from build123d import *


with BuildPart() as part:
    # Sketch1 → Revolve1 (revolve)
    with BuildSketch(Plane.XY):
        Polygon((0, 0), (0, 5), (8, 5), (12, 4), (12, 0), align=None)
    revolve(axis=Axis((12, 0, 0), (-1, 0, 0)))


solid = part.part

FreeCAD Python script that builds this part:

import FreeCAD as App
import Part
import Sketcher
from FreeCAD import Vector
Q = App.Units.Quantity


def add_polygon(sketch, points):
    """Adds a closed chain of lines whose ends are joined by coincident constraints."""
    first, n = sketch.GeometryCount, len(points)
    for a, b in zip(points, points[1:] + points[:1]):
        sketch.addGeometry(Part.LineSegment(App.Vector(*a, 0), App.Vector(*b, 0)), False)
    for i in range(n):
        sketch.addConstraint(Sketcher.Constraint("Coincident", first + i, 2, first + (i + 1) % n, 1))

doc = App.newDocument("Part")
body = doc.addObject("PartDesign::Body", "Body")

sketch1 = doc.addObject("Sketcher::SketchObject", "Sketch")
body.addObject(sketch1)
sketch1.AttachmentSupport = (doc.XY_Plane, [""])
sketch1.MapMode = "FlatFace"
add_polygon(sketch1, [(0, 5), (0, 0), (12, 0), (12, 4), (8, 5)])
sketch1.addConstraint(Sketcher.Constraint("Vertical", 0))
sketch1.addConstraint(Sketcher.Constraint("Horizontal", 1))
sketch1.addConstraint(Sketcher.Constraint("Vertical", 2))
sketch1.addConstraint(Sketcher.Constraint("Horizontal", 4))
sketch1.addConstraint(Sketcher.Constraint("Coincident", 0, 2, -1, 1))
sketch1.addConstraint(Sketcher.Constraint("DistanceX", 1, 1, 1, 2, Q("12 mm")))
sketch1.addConstraint(Sketcher.Constraint("DistanceX", 4, 2, 4, 1, Q("8 mm")))
sketch1.addConstraint(Sketcher.Constraint("DistanceY", 0, 2, 0, 1, Q("5 mm")))
sketch1.addConstraint(Sketcher.Constraint("DistanceY", 2, 1, 2, 2, Q("4 mm")))
revolution = doc.addObject("PartDesign::Revolution", "Revolution")
body.addObject(revolution)
revolution.Profile = sketch1
revolution.ReferenceAxis = (sketch1, ["H_Axis"])
revolution.Angle = 360

doc.recompute()
